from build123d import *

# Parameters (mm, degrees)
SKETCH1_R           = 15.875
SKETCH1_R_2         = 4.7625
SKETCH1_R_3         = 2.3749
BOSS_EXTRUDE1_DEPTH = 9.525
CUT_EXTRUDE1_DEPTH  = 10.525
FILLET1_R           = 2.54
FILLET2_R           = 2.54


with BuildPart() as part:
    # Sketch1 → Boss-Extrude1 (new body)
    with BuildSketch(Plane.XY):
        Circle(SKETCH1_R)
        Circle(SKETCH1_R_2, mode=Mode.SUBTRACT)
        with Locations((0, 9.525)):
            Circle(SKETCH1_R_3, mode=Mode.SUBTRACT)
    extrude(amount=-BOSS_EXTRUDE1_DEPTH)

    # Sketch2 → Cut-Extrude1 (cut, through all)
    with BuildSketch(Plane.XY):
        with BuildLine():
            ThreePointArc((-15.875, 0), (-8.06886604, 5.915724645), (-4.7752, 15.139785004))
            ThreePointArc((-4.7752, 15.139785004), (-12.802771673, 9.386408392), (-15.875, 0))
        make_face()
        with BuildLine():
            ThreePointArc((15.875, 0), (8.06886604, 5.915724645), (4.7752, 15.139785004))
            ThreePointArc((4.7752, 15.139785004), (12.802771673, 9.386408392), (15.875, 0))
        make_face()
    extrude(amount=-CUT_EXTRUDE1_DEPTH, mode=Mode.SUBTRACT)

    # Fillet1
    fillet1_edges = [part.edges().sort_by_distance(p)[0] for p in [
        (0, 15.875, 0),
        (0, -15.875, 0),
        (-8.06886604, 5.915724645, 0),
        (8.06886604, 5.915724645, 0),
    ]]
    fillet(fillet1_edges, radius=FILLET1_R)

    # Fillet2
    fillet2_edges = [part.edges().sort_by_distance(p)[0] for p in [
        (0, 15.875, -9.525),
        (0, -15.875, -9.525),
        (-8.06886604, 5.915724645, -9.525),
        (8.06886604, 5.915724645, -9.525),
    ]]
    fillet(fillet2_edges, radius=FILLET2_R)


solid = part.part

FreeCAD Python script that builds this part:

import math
import FreeCAD as App
import Part
import Sketcher
from FreeCAD import Vector
Q = App.Units.Quantity


def edges_at(feature, points):
    """Names of the edges that pass closest to the given points."""
    edges = feature.Shape.Edges
    near = lambda p: min(range(len(edges)), key=lambda i: edges[i].distToShape(Part.Vertex(*p))[0])
    return sorted({f"Edge{near(p) + 1}" for p in points})

doc = App.newDocument("Part")
params = doc.addObject("Spreadsheet::Sheet", "Params")
for row, (alias, value) in enumerate([
    ("sketch1_diameter", "1.25 in"),
    ("sketch1_diameter2", "0.375 in"),
    ("sketch1_diameter3", "0.187 in"),
    ("pad1_length", "0.375 in"),
    ("sketch2_radius", "0.675 in"),
    ("sketch2_radius2", "0.625 in"),
    ("fillet_radius", "0.1 in"),
    ("fillet2_radius", "0.1 in"),
], start=1):
    params.set(f"A{row}", alias)
    params.set(f"B{row}", "=" + value)
    params.setAlias(f"B{row}", alias)

body = doc.addObject("PartDesign::Body", "Body")

# Sketch on XY plane
sketch1 = body.newObject("Sketcher::SketchObject", "Sketch")
sketch1.AttachmentSupport = (doc.getObject("XY_Plane"), [""])
sketch1.MapMode = "FlatFace"
sketch1.addGeometry([
    Part.Circle(Vector(0, 0, 0), Vector(0, 0, 1), 15.875),
    Part.Circle(Vector(0, 0, 0), Vector(0, 0, 1), 4.7625),
    Part.Circle(Vector(0, 9.525, 0), Vector(0, 0, 1), 2.3749),
], False)
sketch1.addConstraint([
    Sketcher.Constraint("Coincident", 0, 3, -1, 1),
    Sketcher.Constraint("Coincident", 1, 3, -1, 1),
    Sketcher.Constraint("PointOnObject", 2, 3, -2),
    Sketcher.Constraint("Diameter", 0, Q("1.25 in")),
    Sketcher.Constraint("Diameter", 1, Q("0.375 in")),
    Sketcher.Constraint("Diameter", 2, Q("0.187 in")),
    Sketcher.Constraint("DistanceY", -1, 1, 2, 3, Q("0.375 in")),
])
sketch1.setExpression("Constraints[3]", "Params.sketch1_diameter")
sketch1.setExpression("Constraints[4]", "Params.sketch1_diameter2")
sketch1.setExpression("Constraints[5]", "Params.sketch1_diameter3")
pad1 = body.newObject("PartDesign::Pad", "Pad")
pad1.Profile = sketch1
pad1.setExpression("Length", "Params.pad1_length")
pad1.Reversed = True

# Sketch on XY plane
sketch2 = body.newObject("Sketcher::SketchObject", "Sketch001")
sketch2.AttachmentSupport = (doc.getObject("XY_Plane"), [""])
sketch2.MapMode = "FlatFace"
sketch2.addGeometry([
    Part.ArcOfCircle(Part.Circle(Vector(-21.895859, 16.053046, 0), Vector(0, 0, 1), 17.145), math.radians(-69.440928), math.radians(-3.053413)),
    Part.ArcOfCircle(Part.Circle(Vector(0, 0, 0), Vector(0, 0, 1), 15.875), math.radians(107.505659), math.radians(180)),
    Part.ArcOfCircle(Part.Circle(Vector(21.895859, 16.053046, 0), Vector(0, 0, 1), 17.145), math.radians(-176.946587), math.radians(-110.559072)),
    Part.ArcOfCircle(Part.Circle(Vector(0, 0, 0), Vector(0, 0, 1), 15.875), math.radians(0), math.radians(72.494341)),
], False)
sketch2.addConstraint([
    Sketcher.Constraint("Coincident", 0, 1, 1, 2),
    Sketcher.Constraint("Coincident", 1, 1, 0, 2),
    Sketcher.Constraint("Coincident", 2, 1, 3, 2),
    Sketcher.Constraint("Coincident", 3, 1, 2, 2),
    Sketcher.Constraint("Coincident", 1, 3, -1, 1),
    Sketcher.Constraint("Coincident", 3, 3, -1, 1),
    Sketcher.Constraint("Equal", 0, 2),
    Sketcher.Constraint("Equal", 1, 3),
    Sketcher.Constraint("Symmetric", 0, 3, 2, 3, -2),
    Sketcher.Constraint("PointOnObject", 0, 1, -1),
    Sketcher.Constraint("Radius", 0, Q("0.675 in")),
    Sketcher.Constraint("Radius", 1, Q("0.625 in")),
    Sketcher.Constraint("DistanceX", 1, 1, -1, 1, Q("0.188 in")),
])
sketch2.setExpression("Constraints[10]", "Params.sketch2_radius")
sketch2.setExpression("Constraints[11]", "Params.sketch2_radius2")
pocket1 = body.newObject("PartDesign::Pocket", "Pocket")
pocket1.Profile = sketch2
pocket1.Type = "ThroughAll"
doc.recompute()

fillet = body.newObject("PartDesign::Fillet", "Fillet")
fillet.Base = (pocket1, edges_at(pocket1, [
    (0, 15.875, 0),
    (0, -15.875, 0),
    (-8.069, 5.916, 0),
    (8.069, 5.916, 0),
]))
fillet.setExpression("Radius", "Params.fillet_radius")
doc.recompute()

fillet2 = body.newObject("PartDesign::Fillet", "Fillet001")
fillet2.Base = (fillet, edges_at(fillet, [
    (0, 15.875, -9.525),
    (0, -15.875, -9.525),
    (-8.069, 5.916, -9.525),
    (8.069, 5.916, -9.525),
]))
fillet2.setExpression("Radius", "Params.fillet2_radius")

doc.recompute()
